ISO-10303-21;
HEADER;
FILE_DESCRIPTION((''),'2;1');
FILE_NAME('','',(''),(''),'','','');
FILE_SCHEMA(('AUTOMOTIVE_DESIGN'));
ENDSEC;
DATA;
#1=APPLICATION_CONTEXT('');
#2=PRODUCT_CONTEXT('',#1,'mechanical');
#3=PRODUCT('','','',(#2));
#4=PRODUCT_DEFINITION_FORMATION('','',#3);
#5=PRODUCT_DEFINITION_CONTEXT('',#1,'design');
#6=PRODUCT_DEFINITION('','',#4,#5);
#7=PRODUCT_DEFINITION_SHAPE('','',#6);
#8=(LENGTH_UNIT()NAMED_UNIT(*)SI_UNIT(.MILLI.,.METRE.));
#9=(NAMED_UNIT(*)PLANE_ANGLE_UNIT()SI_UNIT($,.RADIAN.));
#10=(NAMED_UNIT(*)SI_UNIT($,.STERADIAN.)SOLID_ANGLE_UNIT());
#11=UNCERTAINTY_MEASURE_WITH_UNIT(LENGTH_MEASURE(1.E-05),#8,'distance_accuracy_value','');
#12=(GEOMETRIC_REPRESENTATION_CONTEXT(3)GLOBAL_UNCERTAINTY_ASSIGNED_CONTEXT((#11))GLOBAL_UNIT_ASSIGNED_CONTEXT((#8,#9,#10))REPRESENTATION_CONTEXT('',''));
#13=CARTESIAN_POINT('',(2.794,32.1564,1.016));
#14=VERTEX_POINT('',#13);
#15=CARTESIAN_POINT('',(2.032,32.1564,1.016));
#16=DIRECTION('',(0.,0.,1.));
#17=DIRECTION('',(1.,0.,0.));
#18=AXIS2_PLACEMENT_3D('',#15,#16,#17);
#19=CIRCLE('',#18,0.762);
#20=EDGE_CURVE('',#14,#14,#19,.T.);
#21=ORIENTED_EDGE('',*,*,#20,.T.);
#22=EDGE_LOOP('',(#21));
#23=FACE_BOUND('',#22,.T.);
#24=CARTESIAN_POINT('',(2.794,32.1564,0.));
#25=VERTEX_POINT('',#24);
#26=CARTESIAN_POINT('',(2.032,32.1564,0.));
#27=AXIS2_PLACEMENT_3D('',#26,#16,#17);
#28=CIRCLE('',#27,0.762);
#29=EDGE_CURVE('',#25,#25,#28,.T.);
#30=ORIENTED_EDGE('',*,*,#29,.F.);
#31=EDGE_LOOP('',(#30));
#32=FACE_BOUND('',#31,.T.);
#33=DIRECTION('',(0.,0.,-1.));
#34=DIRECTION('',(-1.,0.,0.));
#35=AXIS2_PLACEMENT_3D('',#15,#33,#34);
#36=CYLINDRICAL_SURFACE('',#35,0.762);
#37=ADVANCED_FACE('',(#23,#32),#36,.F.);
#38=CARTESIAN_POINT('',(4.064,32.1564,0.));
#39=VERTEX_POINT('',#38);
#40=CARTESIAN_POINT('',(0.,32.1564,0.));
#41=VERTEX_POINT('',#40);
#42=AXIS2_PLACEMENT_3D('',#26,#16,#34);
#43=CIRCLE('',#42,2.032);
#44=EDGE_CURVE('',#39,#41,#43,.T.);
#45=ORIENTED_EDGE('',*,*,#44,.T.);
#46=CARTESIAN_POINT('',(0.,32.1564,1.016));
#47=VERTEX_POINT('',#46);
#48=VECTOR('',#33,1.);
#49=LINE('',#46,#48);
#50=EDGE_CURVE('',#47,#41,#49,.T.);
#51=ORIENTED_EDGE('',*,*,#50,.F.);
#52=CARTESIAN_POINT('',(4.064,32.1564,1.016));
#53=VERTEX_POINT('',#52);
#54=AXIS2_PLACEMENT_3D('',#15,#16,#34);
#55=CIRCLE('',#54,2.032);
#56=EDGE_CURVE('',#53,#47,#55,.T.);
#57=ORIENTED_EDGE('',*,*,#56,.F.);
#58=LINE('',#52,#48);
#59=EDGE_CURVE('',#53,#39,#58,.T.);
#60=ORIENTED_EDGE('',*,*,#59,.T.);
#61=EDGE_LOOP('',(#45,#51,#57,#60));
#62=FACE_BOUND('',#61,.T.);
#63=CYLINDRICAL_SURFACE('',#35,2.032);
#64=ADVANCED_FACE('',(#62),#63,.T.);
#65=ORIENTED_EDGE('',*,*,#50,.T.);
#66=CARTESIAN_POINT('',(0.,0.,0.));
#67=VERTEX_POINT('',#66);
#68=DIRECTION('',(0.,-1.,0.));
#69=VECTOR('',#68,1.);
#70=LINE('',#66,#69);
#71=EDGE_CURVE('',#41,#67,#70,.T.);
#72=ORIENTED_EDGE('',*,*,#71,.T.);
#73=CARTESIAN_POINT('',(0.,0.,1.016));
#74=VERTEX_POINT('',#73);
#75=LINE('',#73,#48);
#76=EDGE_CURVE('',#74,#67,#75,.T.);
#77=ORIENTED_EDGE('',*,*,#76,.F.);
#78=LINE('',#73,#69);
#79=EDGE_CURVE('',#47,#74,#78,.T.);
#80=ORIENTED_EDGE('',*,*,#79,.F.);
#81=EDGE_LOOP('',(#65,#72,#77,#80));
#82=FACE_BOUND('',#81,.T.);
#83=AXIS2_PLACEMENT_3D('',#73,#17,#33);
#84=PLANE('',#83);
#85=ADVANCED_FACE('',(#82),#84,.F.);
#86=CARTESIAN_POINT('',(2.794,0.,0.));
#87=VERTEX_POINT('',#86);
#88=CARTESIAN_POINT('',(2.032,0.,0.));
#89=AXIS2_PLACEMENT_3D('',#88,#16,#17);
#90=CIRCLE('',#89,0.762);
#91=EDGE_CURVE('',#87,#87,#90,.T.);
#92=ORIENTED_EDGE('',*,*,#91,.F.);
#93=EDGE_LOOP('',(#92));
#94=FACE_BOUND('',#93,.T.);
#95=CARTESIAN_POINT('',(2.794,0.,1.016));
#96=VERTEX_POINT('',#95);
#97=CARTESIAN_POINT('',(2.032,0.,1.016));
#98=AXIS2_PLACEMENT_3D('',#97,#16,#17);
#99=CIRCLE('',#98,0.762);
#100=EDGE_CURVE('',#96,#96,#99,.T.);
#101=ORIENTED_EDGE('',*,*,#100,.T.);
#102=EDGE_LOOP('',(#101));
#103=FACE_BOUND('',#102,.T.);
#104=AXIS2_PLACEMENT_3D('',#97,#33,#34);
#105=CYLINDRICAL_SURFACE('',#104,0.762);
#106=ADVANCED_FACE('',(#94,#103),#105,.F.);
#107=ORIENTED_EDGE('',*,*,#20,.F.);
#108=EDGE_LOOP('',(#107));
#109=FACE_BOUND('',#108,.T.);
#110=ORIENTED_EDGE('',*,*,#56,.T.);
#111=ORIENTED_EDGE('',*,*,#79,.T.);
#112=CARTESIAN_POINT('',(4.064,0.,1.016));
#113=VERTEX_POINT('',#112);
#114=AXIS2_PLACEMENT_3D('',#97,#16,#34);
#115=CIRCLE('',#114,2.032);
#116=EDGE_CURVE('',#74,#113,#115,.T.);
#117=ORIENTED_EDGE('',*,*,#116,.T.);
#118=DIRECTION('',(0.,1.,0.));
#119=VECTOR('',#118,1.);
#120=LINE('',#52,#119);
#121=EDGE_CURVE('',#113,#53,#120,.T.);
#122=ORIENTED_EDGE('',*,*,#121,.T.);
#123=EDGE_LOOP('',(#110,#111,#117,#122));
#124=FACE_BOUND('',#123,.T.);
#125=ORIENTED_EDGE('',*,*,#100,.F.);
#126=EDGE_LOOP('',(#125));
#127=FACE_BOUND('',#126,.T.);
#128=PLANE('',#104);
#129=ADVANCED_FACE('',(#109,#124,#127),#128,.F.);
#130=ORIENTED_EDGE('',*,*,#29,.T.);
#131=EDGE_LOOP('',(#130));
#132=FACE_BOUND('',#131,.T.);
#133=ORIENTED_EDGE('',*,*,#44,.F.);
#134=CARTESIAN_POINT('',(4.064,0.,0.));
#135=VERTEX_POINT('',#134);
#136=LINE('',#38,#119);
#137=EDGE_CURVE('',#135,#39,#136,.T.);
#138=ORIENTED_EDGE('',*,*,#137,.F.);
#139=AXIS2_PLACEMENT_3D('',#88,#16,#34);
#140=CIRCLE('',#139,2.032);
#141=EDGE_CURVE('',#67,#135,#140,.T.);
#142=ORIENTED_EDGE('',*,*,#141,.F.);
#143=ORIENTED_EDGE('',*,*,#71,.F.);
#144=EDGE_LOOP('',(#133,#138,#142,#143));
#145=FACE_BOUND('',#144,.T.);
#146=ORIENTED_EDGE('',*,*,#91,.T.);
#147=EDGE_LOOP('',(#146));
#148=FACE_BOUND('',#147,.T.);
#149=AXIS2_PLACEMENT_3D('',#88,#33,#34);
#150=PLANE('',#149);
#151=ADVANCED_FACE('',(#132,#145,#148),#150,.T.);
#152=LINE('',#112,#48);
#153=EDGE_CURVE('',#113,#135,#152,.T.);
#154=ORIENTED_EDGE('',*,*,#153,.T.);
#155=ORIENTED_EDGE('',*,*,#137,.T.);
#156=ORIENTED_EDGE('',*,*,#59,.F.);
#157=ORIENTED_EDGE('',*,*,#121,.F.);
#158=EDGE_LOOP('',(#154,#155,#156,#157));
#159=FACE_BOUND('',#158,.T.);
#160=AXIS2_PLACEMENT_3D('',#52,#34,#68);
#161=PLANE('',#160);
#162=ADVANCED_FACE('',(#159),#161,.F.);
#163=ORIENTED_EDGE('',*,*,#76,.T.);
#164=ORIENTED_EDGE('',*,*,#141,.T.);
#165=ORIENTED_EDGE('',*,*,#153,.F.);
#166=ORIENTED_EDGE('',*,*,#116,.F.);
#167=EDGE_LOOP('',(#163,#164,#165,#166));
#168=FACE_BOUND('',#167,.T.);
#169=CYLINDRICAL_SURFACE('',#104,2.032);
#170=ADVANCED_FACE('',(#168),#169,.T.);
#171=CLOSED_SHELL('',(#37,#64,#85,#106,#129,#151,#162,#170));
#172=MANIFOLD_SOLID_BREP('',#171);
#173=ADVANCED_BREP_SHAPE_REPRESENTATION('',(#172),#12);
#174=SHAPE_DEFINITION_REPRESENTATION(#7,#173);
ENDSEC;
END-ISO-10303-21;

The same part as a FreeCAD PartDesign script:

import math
import FreeCAD as App
import Part
import Sketcher
from FreeCAD import Vector
Q = App.Units.Quantity

doc = App.newDocument("Part")
body = doc.addObject("PartDesign::Body", "Body")

# Sketch on XY plane
sketch1 = body.newObject("Sketcher::SketchObject", "Sketch")
sketch1.AttachmentSupport = (doc.getObject("XY_Plane"), [""])
sketch1.MapMode = "FlatFace"
sketch1.addGeometry(Part.LineSegment(Vector(0, 32.2, 0), Vector(0, 0, 0)), False)
sketch1.addGeometry(Part.ArcOfCircle(Part.Circle(Vector(2, 0, 0), Vector(0, 0, 1), 2), math.radians(180), math.radians(360)), False)
sketch1.addGeometry(Part.LineSegment(Vector(4.1, 0, 0), Vector(4.1, 32.2, 0)), False)
sketch1.addGeometry(Part.ArcOfCircle(Part.Circle(Vector(2, 32.2, 0), Vector(0, 0, 1), 2), math.radians(0), math.radians(180)), False)
sketch1.addGeometry(Part.Circle(Vector(2, 0, 0), Vector(0, 0, 1), 0.8), False)
sketch1.addGeometry(Part.Circle(Vector(2, 32.2, 0), Vector(0, 0, 1), 0.8), False)
sketch1.addConstraint(Sketcher.Constraint("Tangent", 0, 2, 1, 1))
sketch1.addConstraint(Sketcher.Constraint("Tangent", 1, 2, 2, 1))
sketch1.addConstraint(Sketcher.Constraint("Tangent", 2, 2, 3, 1))
sketch1.addConstraint(Sketcher.Constraint("Tangent", 3, 2, 0, 1))
sketch1.addConstraint(Sketcher.Constraint("Vertical", 0))
sketch1.addConstraint(Sketcher.Constraint("Vertical", 2))
sketch1.addConstraint(Sketcher.Constraint("Coincident", 0, 2, -1, 1))
sketch1.addConstraint(Sketcher.Constraint("Coincident", 4, 3, 1, 3))
sketch1.addConstraint(Sketcher.Constraint("Coincident", 5, 3, 3, 3))
sketch1.addConstraint(Sketcher.Constraint("Equal", 4, 5))
sketch1.addConstraint(Sketcher.Constraint("Diameter", 4, Q("0.06 in")))
sketch1.addConstraint(Sketcher.Constraint("Radius", 1, Q("0.08 in")))
sketch1.addConstraint(Sketcher.Constraint("DistanceY", 0, 2, 0, 1, Q("1.266 in")))
pad1 = body.newObject("PartDesign::Pad", "Pad")
pad1.Profile = sketch1
pad1.Length = Q("0.04 in")

doc.recompute()
